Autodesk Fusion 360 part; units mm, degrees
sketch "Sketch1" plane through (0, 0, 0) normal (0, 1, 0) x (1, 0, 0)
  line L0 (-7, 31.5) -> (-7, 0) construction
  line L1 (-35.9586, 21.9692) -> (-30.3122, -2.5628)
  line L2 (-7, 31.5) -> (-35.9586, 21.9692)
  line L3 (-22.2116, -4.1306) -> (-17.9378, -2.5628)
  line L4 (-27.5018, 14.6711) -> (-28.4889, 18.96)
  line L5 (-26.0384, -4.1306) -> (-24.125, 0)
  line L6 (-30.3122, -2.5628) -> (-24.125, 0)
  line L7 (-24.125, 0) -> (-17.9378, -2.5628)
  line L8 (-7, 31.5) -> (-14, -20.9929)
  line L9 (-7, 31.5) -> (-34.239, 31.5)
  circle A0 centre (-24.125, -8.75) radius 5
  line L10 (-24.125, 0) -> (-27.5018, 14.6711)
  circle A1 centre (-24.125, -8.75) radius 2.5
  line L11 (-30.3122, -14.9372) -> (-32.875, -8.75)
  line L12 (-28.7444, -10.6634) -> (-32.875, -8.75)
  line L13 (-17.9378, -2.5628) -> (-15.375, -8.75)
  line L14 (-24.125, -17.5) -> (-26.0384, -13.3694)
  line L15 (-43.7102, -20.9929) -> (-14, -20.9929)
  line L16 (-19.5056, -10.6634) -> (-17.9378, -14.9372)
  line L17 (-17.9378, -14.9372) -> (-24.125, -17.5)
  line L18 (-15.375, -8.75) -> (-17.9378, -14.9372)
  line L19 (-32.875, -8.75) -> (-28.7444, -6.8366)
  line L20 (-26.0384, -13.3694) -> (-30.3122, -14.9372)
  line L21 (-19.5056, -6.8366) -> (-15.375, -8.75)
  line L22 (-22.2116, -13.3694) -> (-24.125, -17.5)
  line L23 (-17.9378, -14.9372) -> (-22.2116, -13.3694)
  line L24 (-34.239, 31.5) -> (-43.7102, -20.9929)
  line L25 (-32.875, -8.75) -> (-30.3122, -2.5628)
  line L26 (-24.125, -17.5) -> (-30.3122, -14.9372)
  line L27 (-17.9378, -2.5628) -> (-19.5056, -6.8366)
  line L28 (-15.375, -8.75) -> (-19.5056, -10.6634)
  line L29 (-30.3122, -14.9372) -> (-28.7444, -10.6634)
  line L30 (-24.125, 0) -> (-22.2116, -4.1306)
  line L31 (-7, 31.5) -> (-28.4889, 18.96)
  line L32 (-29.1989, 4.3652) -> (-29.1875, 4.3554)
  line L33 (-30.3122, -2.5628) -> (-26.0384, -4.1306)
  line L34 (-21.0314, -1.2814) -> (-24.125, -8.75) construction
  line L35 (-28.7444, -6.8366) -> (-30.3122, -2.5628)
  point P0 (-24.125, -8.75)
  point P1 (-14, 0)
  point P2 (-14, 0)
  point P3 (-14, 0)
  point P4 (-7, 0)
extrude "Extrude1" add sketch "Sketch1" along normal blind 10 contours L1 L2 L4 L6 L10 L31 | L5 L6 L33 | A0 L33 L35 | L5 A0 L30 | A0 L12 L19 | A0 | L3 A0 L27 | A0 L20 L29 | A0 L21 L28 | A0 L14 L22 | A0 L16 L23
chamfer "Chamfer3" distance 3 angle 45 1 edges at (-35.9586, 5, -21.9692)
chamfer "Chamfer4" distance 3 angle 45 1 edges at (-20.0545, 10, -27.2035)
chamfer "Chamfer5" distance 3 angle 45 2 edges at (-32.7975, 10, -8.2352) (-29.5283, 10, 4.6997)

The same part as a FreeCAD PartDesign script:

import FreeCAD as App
import Part
import Sketcher

V = App.Vector
Q = App.Units.Quantity


def edges_at(feature, points):
    """Names of the edges that pass closest to the given points."""
    edges = feature.Shape.Edges
    near = lambda p: min(range(len(edges)), key=lambda i: edges[i].distToShape(Part.Vertex(*p))[0])
    return sorted({f"Edge{near(p) + 1}" for p in points})


def add_polygon(sketch, points):
    """Adds a closed chain of lines whose ends are joined by coincident constraints."""
    first, n = sketch.GeometryCount, len(points)
    for a, b in zip(points, points[1:] + points[:1]):
        sketch.addGeometry(Part.LineSegment(App.Vector(*a, 0), App.Vector(*b, 0)), False)
    for i in range(n):
        sketch.addConstraint(Sketcher.Constraint("Coincident", first + i, 2, first + (i + 1) % n, 1))

doc = App.newDocument("Part")
body = doc.addObject("PartDesign::Body", "Body")

sketch1 = body.newObject("Sketcher::SketchObject", "Sketch")
sketch1.AttachmentSupport = (doc.getObject("XZ_Plane"), [""])
sketch1.MapMode = "FlatFace"
add_polygon(sketch1, [(-7, -31.5), (-36, -22), (-30.3, 2.6), (-28.7, 6.8), (-32.9, 8.8), (-28.7, 10.7), (-30.3, 14.9), (-26, 13.4), (-24.1, 17.5), (-22.2, 13.4), (-17.9, 14.9), (-19.5, 10.7), (-15.4, 8.8), (-19.5, 6.8), (-17.9, 2.6), (-22.2, 4.1), (-24.1, 0), (-27.5, -14.7), (-28.5, -19)])
sketch1.addGeometry(Part.Circle(V(-24.1, 8.8, 0), V(0, 0, 1), 2.5), False)
sketch1.addConstraint(Sketcher.Constraint("PointOnObject", 15, 2, -1))
sketch1.addConstraint(Sketcher.Constraint("Perpendicular", 2, 6))
sketch1.addConstraint(Sketcher.Constraint("Perpendicular", 3, 7))
sketch1.addConstraint(Sketcher.Constraint("Perpendicular", 4, 8))
sketch1.addConstraint(Sketcher.Constraint("Perpendicular", 5, 9))
sketch1.addConstraint(Sketcher.Constraint("Perpendicular", 6, 10))
sketch1.addConstraint(Sketcher.Constraint("Perpendicular", 7, 11))
sketch1.addConstraint(Sketcher.Constraint("Perpendicular", 8, 12))
sketch1.addConstraint(Sketcher.Constraint("Perpendicular", 9, 13))
sketch1.addConstraint(Sketcher.Constraint("Perpendicular", 10, 14))
sketch1.addConstraint(Sketcher.Constraint("Perpendicular", 11, 15))
sketch1.addConstraint(Sketcher.Constraint("Parallel", 1, 16))
sketch1.addConstraint(Sketcher.Constraint("Parallel", 16, 17))
sketch1.addConstraint(Sketcher.Constraint("Horizontal", 19, 3, 3, 2))
sketch1.addConstraint(Sketcher.Constraint("Horizontal", 6, 2, 8, 2))
sketch1.addConstraint(Sketcher.Constraint("Horizontal", 5, 2, 9, 2))
sketch1.addConstraint(Sketcher.Constraint("Horizontal", 4, 2, 10, 2))
sketch1.addConstraint(Sketcher.Constraint("Horizontal", 3, 2, 11, 2))
sketch1.addConstraint(Sketcher.Constraint("Horizontal", 2, 2, 12, 2))
sketch1.addConstraint(Sketcher.Constraint("Horizontal", 1, 2, 13, 2))
sketch1.addConstraint(Sketcher.Constraint("Vertical", 2, 2, 4, 2))
sketch1.addConstraint(Sketcher.Constraint("Vertical", 1, 2, 5, 2))
sketch1.addConstraint(Sketcher.Constraint("Vertical", 19, 3, 7, 2))
sketch1.addConstraint(Sketcher.Constraint("Vertical", 10, 2, 12, 2))
sketch1.addConstraint(Sketcher.Constraint("Vertical", 9, 2, 13, 2))
sketch1.addConstraint(Sketcher.Constraint("Vertical", 8, 2, 14, 2))
sketch1.addConstraint(Sketcher.Constraint("Vertical", 7, 2, 15, 2))
sketch1.addConstraint(Sketcher.Constraint("Equal", 2, 3))
sketch1.addConstraint(Sketcher.Constraint("Equal", 5, 6))
sketch1.addConstraint(Sketcher.Constraint("Equal", 6, 7))
sketch1.addConstraint(Sketcher.Constraint("Diameter", 19, 5.0))
sketch1.addConstraint(Sketcher.Constraint("DistanceX", 18, 2, -1, 1, 7.0))
sketch1.addConstraint(Sketcher.Constraint("DistanceY", -1, 1, 7, 2, 17.5))
sketch1.addConstraint(Sketcher.Constraint("DistanceY", 18, 2, -1, 1, 31.5))
sketch1.addConstraint(Sketcher.Constraint("Angle", 17, Q("-102.961 deg")))
sketch1.addConstraint(Sketcher.Constraint("DistanceY", 17, 2, -1, 1, 18.96))
sketch1.addConstraint(Sketcher.Constraint("Distance", 17, 4.401))
sketch1.addConstraint(Sketcher.Constraint("DistanceX", 19, 3, -1, 1, 24.125))
sketch1.addConstraint(Sketcher.Constraint("DistanceY", 0, 2, 1, 2, 24.532))
sketch1.addConstraint(Sketcher.Constraint("DistanceX", 4, 2, 6, 2, 2.706))
sketch1.addConstraint(Sketcher.Constraint("DistanceY", 0, 2, 16, 2, 7.298))
pad1 = body.newObject("PartDesign::Pad", "Pad")
pad1.Profile = sketch1
pad1.Length = 10
pad1.Reversed = True
doc.recompute()

chamfer = body.newObject("PartDesign::Chamfer", "Chamfer")
chamfer.Base = (pad1, edges_at(pad1, [(-35.959, 5, -21.969)]))
chamfer.Size = 3
doc.recompute()

chamfer2 = body.newObject("PartDesign::Chamfer", "Chamfer001")
chamfer2.Base = (chamfer, edges_at(chamfer, [(-20.055, 10, -27.203)]))
chamfer2.Size = 3
doc.recompute()

chamfer3 = body.newObject("PartDesign::Chamfer", "Chamfer002")
chamfer3.Base = (chamfer2, edges_at(chamfer2, [(-32.797, 10, -8.235), (-29.528, 10, 4.7)]))
chamfer3.Size = 3

doc.recompute()
